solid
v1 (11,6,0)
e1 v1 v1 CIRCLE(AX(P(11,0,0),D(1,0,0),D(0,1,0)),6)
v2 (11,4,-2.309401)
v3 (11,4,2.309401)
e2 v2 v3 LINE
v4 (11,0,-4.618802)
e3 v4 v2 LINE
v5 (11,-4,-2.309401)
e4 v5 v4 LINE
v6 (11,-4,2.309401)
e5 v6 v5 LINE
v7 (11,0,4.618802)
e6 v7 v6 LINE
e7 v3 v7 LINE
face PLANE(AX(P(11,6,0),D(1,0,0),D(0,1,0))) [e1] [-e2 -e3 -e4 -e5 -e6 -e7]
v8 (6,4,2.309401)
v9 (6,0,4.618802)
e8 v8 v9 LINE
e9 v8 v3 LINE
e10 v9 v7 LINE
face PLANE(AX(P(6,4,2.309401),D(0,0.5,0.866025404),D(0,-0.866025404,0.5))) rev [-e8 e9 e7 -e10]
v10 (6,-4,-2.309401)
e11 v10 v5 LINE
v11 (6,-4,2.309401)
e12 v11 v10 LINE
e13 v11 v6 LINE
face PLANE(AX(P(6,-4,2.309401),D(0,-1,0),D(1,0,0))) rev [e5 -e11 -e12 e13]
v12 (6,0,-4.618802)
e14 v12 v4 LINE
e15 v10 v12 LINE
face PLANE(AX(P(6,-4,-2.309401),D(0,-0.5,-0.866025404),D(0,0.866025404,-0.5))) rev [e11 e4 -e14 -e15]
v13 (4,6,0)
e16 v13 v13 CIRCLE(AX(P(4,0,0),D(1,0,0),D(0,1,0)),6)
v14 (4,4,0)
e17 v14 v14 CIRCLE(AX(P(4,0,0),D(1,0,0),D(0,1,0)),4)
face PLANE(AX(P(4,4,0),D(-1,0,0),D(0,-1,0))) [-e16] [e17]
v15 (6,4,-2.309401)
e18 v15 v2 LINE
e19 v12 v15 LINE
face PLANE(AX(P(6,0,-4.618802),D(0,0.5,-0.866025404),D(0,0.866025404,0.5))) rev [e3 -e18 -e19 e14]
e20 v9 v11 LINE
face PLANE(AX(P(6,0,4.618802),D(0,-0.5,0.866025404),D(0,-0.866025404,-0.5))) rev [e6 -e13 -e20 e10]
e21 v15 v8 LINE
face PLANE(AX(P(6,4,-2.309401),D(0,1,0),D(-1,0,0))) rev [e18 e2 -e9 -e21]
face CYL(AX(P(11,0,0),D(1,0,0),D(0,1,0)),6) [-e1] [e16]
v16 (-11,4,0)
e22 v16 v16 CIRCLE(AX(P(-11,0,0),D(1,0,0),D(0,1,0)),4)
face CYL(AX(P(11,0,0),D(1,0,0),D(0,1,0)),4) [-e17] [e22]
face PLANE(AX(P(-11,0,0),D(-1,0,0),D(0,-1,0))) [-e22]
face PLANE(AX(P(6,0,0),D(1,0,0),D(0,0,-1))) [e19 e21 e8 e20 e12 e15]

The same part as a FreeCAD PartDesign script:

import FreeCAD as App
import Part
import Sketcher
from FreeCAD import Vector
Q = App.Units.Quantity


def add_polygon(sketch, points):
    """Adds a closed chain of lines whose ends are joined by coincident constraints."""
    first, n = sketch.GeometryCount, len(points)
    for a, b in zip(points, points[1:] + points[:1]):
        sketch.addGeometry(Part.LineSegment(App.Vector(*a, 0), App.Vector(*b, 0)), False)
    for i in range(n):
        sketch.addConstraint(Sketcher.Constraint("Coincident", first + i, 2, first + (i + 1) % n, 1))

doc = App.newDocument("Part")
body = doc.addObject("PartDesign::Body", "Body")

sketch1 = doc.addObject("Sketcher::SketchObject", "Sketch")
body.addObject(sketch1)
sketch1.AttachmentSupport = (doc.XY_Plane, [""])
sketch1.MapMode = "FlatFace"
add_polygon(sketch1, [(-11, 0), (11, 0), (11, 6), (4, 6), (4, 4), (-11, 4)])
sketch1.addConstraint([
    Sketcher.Constraint("Horizontal", 0),
    Sketcher.Constraint("Vertical", 1),
    Sketcher.Constraint("Horizontal", 2),
    Sketcher.Constraint("Vertical", 3),
    Sketcher.Constraint("Horizontal", 4),
    Sketcher.Constraint("Vertical", 5),
    Sketcher.Constraint("Symmetric", 0, 2, 5, 2, -1, 1),
    Sketcher.Constraint("DistanceX", 0, 1, 0, 2, 22.0),
    Sketcher.Constraint("DistanceX", 2, 2, 2, 1, 7.0),
    Sketcher.Constraint("DistanceY", 1, 1, 1, 2, 6.0),
    Sketcher.Constraint("DistanceY", 3, 2, 3, 1, 2.0),
])
revolution = doc.addObject("PartDesign::Revolution", "Revolution")
body.addObject(revolution)
revolution.Profile = sketch1
revolution.ReferenceAxis = (sketch1, ["H_Axis"])
revolution.Angle = 360

sketch2 = doc.addObject("Sketcher::SketchObject", "Sketch001")
body.addObject(sketch2)
sketch2.AttachmentSupport = (doc.YZ_Plane, [""])
sketch2.MapMode = "FlatFace"
sketch2.AttachmentOffset = App.Placement(Vector(0, 0, 11), App.Rotation())
add_polygon(sketch2, [(0, -4.618802), (4, -2.309401), (4, 2.309401), (0, 4.618802), (-4, 2.309401), (-4, -2.309401)])
sketch2.addConstraint([
    Sketcher.Constraint("Vertical", 1),
    Sketcher.Constraint("Vertical", 4),
    Sketcher.Constraint("Symmetric", 0, 2, 3, 2, -1, 1),
    Sketcher.Constraint("Symmetric", 2, 2, 5, 2, -1, 1),
    Sketcher.Constraint("PointOnObject", 2, 2, -2),
    Sketcher.Constraint("Parallel", 2, 5),
    Sketcher.Constraint("Horizontal", 1, 2, 3, 2),
    Sketcher.Constraint("Angle", 0, Q("30 deg")),
    Sketcher.Constraint("DistanceX", -1, 1, 0, 2, 4.0),
    Sketcher.Constraint("DistanceY", 0, 2, -1, 1, 2.309401),
])
pocket1 = doc.addObject("PartDesign::Pocket", "Pocket")
body.addObject(pocket1)
pocket1.Profile = sketch2
pocket1.Length = 5

doc.recompute()
